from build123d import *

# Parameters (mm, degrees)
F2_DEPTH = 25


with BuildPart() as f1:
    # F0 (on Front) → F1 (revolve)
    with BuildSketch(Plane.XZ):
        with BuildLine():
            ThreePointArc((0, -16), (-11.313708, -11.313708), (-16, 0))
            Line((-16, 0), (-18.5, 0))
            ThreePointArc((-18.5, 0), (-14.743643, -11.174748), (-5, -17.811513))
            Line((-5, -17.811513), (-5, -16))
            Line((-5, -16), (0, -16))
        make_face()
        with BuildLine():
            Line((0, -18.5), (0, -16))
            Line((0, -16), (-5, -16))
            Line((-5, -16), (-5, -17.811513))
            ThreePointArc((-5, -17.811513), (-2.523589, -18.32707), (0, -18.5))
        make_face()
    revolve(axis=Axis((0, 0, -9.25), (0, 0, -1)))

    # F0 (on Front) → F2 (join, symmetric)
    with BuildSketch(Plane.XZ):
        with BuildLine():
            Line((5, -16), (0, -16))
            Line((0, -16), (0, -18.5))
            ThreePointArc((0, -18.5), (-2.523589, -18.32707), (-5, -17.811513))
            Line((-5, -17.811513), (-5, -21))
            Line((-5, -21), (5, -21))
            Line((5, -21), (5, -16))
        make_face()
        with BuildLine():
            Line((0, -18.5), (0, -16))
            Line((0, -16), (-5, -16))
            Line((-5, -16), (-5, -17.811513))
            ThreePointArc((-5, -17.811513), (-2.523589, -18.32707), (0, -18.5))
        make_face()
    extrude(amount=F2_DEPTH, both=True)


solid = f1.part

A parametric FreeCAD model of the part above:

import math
import FreeCAD as App
import Part
import Sketcher
from FreeCAD import Vector

doc = App.newDocument("Part")
body = doc.addObject("PartDesign::Body", "Body")

sketch1 = doc.addObject("Sketcher::SketchObject", "Sketch")
body.addObject(sketch1)
sketch1.AttachmentSupport = (doc.XZ_Plane, [""])
sketch1.MapMode = "FlatFace"
sketch1.addGeometry([
    Part.ArcOfCircle(Part.Circle(Vector(0.000002, 0.000002, 0), Vector(0, 0, 1), 16.000002), math.radians(-179.999994), math.radians(-90.000006)),
    Part.LineSegment(Vector(-16, 0, 0), Vector(-18.5, 0, 0)),
    Part.ArcOfCircle(Part.Circle(Vector(0, 0, 0), Vector(0, 0, 1), 18.5), math.radians(179.999999), math.radians(254.319651)),
    Part.ArcOfCircle(Part.Circle(Vector(0.000001, 0.000004, 0), Vector(0, 0, 1), 18.500004), math.radians(-105.68035), math.radians(-90.000003)),
    Part.LineSegment(Vector(0, -18.5, 0), Vector(0, -16, 0)),
], False)
sketch1.addConstraint([
    Sketcher.Constraint("Coincident", 0, 1, 1, 1),
    Sketcher.Constraint("Coincident", 1, 2, 2, 1),
    Sketcher.Constraint("Tangent", 2, 2, 3, 1),
    Sketcher.Constraint("Coincident", 3, 2, 4, 1),
    Sketcher.Constraint("Coincident", 4, 2, 0, 2),
    Sketcher.Constraint("Horizontal", 1),
    Sketcher.Constraint("Vertical", 4),
    Sketcher.Constraint("Coincident", 0, 3, -1, 1),
    Sketcher.Constraint("Coincident", 2, 3, -1, 1),
    Sketcher.Constraint("PointOnObject", 3, 3, -2),
    Sketcher.Constraint("PointOnObject", 0, 1, -1),
    Sketcher.Constraint("PointOnObject", 3, 2, -2),
    Sketcher.Constraint("Radius", 0, 16.000002),
    Sketcher.Constraint("Radius", 2, 18.5),
    Sketcher.Constraint("DistanceX", 2, 2, -1, 1, 5.0),
])
revolution = doc.addObject("PartDesign::Revolution", "Revolution")
body.addObject(revolution)
revolution.Profile = sketch1
revolution.ReferenceAxis = (sketch1, ["V_Axis"])
revolution.Angle = 360

sketch2 = doc.addObject("Sketcher::SketchObject", "Sketch001")
body.addObject(sketch2)
sketch2.AttachmentSupport = (doc.XZ_Plane, [""])
sketch2.MapMode = "FlatFace"
sketch2.addGeometry([
    Part.LineSegment(Vector(5, -16, 0), Vector(-5, -16, 0)),
    Part.LineSegment(Vector(-5, -16, 0), Vector(-5, -21, 0)),
    Part.LineSegment(Vector(-5, -21, 0), Vector(5, -21, 0)),
    Part.LineSegment(Vector(5, -21, 0), Vector(5, -16, 0)),
], False)
sketch2.addConstraint([
    Sketcher.Constraint("Coincident", 0, 2, 1, 1),
    Sketcher.Constraint("Coincident", 1, 2, 2, 1),
    Sketcher.Constraint("Coincident", 2, 2, 3, 1),
    Sketcher.Constraint("Coincident", 3, 2, 0, 1),
    Sketcher.Constraint("Horizontal", 0),
    Sketcher.Constraint("Vertical", 1),
    Sketcher.Constraint("Horizontal", 2),
    Sketcher.Constraint("Vertical", 3),
    Sketcher.Constraint("DistanceX", 0, 2, 0, 1, 10.0),
    Sketcher.Constraint("DistanceY", 1, 2, 1, 1, 5.0),
    Sketcher.Constraint("DistanceX", 0, 2, -1, 1, 5.0),
    Sketcher.Constraint("DistanceY", 0, 2, -1, 1, 16.0),
])
pad1 = doc.addObject("PartDesign::Pad", "Pad")
body.addObject(pad1)
pad1.Profile = sketch2
pad1.Length = 50
pad1.Midplane = True

doc.recompute()
